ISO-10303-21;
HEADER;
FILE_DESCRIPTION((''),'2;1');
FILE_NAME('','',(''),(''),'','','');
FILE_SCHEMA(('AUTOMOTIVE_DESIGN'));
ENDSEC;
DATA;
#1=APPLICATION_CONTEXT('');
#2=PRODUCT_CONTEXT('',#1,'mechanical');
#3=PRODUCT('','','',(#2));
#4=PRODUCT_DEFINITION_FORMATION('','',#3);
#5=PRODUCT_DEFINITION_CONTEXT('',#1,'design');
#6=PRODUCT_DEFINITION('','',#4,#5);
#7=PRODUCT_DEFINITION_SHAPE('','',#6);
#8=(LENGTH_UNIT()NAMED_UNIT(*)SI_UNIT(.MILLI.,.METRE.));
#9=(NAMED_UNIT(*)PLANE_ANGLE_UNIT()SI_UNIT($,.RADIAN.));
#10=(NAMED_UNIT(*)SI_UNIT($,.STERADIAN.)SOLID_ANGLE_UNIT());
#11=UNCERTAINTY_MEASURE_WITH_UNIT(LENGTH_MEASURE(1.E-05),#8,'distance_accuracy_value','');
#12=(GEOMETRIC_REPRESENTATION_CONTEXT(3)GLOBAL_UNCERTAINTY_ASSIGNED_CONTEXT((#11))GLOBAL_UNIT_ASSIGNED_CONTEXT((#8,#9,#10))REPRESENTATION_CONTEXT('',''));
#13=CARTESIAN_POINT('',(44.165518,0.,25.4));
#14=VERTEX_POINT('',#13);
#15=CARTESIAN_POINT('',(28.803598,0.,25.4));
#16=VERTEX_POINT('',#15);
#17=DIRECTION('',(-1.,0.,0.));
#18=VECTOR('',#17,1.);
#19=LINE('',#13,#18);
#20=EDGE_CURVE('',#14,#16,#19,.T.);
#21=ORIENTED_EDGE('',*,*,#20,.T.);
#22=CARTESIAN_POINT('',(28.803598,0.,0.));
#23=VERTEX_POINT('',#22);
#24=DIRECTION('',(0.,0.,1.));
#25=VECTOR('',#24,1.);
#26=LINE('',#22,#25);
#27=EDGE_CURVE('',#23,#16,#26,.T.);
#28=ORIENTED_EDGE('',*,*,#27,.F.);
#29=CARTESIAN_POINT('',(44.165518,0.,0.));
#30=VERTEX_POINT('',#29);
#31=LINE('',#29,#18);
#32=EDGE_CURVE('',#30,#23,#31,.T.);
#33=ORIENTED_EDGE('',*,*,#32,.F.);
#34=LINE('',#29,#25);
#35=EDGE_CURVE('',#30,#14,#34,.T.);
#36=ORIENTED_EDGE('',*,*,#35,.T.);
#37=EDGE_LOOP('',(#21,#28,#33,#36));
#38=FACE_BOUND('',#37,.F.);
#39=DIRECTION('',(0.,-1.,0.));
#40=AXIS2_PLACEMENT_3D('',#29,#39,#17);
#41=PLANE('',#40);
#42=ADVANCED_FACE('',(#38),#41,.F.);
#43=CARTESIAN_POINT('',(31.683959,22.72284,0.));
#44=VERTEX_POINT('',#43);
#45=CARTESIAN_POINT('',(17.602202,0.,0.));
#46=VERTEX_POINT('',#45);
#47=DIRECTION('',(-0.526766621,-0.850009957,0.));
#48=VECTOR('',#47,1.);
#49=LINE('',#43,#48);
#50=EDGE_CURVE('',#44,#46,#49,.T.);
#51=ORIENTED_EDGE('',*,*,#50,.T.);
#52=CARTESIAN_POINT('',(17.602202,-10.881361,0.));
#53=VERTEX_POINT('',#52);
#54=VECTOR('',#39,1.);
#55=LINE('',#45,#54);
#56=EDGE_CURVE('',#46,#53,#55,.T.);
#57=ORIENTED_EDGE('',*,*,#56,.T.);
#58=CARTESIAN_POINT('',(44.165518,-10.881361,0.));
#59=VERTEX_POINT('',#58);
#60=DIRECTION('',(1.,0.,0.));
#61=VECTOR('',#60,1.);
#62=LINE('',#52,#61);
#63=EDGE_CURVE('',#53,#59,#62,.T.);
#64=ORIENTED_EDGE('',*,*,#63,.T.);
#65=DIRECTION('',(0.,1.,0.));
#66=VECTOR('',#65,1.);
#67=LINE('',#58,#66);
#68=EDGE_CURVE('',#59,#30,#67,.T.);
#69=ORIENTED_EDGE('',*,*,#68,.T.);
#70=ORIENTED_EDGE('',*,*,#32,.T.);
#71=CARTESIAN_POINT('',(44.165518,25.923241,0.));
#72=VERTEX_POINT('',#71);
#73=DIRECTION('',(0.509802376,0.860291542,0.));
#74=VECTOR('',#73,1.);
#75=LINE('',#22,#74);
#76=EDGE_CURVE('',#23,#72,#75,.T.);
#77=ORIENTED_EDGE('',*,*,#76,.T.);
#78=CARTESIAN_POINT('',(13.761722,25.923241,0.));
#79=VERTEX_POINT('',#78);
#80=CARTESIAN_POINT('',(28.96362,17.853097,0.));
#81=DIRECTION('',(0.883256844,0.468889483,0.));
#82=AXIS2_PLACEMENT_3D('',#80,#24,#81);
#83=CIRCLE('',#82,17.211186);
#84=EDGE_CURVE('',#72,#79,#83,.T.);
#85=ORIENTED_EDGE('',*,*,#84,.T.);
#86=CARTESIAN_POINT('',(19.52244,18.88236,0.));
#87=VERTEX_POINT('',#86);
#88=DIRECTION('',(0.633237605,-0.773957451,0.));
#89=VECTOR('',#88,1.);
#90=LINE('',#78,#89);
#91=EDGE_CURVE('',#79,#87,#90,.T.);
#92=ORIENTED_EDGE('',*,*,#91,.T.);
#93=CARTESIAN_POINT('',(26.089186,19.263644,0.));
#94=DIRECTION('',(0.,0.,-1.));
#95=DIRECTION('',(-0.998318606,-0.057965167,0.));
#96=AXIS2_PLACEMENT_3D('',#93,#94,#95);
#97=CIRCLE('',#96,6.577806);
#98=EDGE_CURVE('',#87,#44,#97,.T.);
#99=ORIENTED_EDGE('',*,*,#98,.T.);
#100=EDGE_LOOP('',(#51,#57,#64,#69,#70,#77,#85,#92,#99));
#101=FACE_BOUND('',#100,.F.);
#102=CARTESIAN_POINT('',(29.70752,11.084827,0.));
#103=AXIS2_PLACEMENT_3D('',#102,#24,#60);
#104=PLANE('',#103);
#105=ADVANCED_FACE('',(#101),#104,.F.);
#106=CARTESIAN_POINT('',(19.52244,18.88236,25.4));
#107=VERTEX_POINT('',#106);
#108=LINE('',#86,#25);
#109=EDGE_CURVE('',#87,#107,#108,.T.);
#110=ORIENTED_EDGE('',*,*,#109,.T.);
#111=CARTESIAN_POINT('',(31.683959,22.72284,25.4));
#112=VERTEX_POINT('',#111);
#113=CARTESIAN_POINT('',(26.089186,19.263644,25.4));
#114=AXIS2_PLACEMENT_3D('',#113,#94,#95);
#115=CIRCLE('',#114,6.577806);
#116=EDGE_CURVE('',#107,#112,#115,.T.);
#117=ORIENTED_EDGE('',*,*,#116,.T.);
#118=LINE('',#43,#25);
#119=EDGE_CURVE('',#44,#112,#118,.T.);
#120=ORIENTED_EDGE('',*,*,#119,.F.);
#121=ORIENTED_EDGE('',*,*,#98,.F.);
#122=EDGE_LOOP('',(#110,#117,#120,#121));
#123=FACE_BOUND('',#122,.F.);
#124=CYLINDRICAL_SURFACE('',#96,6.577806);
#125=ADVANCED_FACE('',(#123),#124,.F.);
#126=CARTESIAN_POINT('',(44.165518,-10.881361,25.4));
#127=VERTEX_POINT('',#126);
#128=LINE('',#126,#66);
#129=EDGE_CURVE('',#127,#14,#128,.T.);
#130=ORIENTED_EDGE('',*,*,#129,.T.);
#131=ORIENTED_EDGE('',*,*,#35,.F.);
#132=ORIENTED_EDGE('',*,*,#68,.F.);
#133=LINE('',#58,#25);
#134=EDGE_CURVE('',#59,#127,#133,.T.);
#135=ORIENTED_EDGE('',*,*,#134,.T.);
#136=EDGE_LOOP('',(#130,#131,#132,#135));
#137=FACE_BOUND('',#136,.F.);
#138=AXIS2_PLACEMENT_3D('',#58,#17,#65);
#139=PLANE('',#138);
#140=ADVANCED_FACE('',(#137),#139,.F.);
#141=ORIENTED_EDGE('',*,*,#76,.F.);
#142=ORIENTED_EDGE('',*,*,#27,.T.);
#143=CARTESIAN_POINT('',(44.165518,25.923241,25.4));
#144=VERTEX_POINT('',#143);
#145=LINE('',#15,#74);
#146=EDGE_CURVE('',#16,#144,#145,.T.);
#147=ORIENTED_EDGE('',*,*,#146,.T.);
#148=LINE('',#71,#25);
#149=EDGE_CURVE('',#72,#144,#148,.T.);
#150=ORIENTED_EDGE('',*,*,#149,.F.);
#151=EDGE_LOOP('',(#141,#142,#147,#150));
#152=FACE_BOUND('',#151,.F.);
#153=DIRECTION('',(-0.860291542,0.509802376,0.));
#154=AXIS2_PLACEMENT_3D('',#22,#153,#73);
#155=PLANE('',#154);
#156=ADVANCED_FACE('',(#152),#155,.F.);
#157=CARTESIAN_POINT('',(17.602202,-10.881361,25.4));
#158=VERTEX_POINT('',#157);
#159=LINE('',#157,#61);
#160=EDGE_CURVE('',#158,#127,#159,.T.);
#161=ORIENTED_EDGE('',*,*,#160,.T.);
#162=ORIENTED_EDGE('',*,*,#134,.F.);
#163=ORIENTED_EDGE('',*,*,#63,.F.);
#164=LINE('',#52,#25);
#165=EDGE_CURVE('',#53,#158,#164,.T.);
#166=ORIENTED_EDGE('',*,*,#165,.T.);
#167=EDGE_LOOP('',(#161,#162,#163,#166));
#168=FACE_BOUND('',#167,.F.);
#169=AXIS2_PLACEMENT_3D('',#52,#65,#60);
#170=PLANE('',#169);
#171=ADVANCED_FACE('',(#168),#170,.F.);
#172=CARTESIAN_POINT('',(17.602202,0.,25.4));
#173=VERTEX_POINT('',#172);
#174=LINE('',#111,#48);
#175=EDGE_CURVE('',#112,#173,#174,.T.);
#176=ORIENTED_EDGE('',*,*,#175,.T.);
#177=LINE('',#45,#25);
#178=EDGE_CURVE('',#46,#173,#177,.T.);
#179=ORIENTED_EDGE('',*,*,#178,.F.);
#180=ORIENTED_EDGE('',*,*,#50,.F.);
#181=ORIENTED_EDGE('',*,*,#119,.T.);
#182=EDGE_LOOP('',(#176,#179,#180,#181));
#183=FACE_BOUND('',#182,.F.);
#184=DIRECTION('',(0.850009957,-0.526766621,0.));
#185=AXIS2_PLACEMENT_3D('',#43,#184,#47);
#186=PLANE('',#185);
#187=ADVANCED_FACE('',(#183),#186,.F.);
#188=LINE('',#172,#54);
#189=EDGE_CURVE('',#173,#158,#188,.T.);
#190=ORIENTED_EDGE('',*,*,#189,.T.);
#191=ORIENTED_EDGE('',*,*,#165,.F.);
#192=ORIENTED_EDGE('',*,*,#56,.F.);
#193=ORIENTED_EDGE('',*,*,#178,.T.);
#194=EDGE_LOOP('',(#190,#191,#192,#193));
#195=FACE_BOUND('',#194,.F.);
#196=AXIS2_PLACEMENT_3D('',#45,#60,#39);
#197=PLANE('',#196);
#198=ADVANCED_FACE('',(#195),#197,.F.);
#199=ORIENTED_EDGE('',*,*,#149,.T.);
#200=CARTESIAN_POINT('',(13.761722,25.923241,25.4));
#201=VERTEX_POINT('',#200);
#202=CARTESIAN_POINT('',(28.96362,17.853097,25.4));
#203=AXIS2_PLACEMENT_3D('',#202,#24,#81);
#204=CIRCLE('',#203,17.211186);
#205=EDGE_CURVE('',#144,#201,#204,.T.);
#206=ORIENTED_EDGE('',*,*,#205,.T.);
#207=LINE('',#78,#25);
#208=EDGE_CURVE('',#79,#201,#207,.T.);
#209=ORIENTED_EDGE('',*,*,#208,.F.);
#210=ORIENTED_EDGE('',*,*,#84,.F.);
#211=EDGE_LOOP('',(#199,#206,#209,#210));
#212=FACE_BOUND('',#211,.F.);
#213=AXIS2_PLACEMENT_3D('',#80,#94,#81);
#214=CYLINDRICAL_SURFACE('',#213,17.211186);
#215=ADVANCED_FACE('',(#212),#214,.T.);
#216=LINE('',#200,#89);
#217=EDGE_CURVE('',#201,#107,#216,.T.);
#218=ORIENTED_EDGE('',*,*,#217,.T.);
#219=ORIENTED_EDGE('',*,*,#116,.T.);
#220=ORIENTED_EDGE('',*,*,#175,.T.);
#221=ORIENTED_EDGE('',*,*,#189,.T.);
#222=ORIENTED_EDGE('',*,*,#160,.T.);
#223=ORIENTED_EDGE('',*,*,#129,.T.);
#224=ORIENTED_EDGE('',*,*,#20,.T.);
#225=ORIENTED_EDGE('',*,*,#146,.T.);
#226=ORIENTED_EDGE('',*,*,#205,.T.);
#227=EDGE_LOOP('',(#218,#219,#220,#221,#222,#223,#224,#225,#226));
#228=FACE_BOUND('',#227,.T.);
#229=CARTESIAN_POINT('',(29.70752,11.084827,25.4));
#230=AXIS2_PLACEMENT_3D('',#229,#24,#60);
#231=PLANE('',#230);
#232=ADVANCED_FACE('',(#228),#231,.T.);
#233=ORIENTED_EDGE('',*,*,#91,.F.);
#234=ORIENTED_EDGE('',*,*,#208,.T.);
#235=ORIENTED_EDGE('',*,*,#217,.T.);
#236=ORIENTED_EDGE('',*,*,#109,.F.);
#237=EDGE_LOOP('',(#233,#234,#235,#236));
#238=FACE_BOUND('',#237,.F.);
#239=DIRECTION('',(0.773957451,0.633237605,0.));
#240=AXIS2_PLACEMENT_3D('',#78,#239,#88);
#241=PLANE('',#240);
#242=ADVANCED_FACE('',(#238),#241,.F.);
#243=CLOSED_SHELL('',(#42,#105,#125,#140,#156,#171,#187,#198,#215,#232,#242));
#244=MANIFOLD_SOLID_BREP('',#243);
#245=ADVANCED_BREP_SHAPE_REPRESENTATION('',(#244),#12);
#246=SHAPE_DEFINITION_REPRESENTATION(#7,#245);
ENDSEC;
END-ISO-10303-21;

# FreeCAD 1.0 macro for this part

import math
import FreeCAD as App
import Part
import Sketcher
from FreeCAD import Vector
Q = App.Units.Quantity

doc = App.newDocument("Part")
params = doc.addObject("Spreadsheet::Sheet", "Params")
for row, (alias, value) in enumerate([
    ("pad1_length", "1 in"),
], start=1):
    params.set(f"A{row}", alias)
    params.set(f"B{row}", "=" + value)
    params.setAlias(f"B{row}", alias)

body = doc.addObject("PartDesign::Body", "Body")

# Sketch on XY plane
sketch1 = body.newObject("Sketcher::SketchObject", "Sketch")
sketch1.AttachmentSupport = (doc.getObject("XY_Plane"), [""])
sketch1.MapMode = "FlatFace"
sketch1.addGeometry([
    Part.LineSegment(Vector(29, 0, 0), Vector(44, 26, 0)),  # 0
    Part.ArcOfCircle(Part.Circle(Vector(29, 18, 0), Vector(0, 0, 1), 17), math.radians(28), math.radians(152)),  # 1
    Part.LineSegment(Vector(14, 26, 0), Vector(20, 19, 0)),  # 2
    Part.ArcOfCircle(Part.Circle(Vector(26, 19, 0), Vector(0, 0, 1), 7), math.radians(32), math.radians(183)),  # 3
    Part.LineSegment(Vector(32, 23, 0), Vector(18, 0, 0)),  # 4
    Part.LineSegment(Vector(18, 0, 0), Vector(18, -11, 0)),  # 5
    Part.LineSegment(Vector(18, -11, 0), Vector(44, -11, 0)),  # 6
    Part.LineSegment(Vector(44, -11, 0), Vector(44, 0, 0)),  # 7
    Part.LineSegment(Vector(44, 0, 0), Vector(29, 0, 0)),  # 8
], False)
sketch1.addConstraint([
    Sketcher.Constraint("Coincident", 0, 2, 1, 1),
    Sketcher.Constraint("Coincident", 1, 2, 2, 1),
    Sketcher.Constraint("Coincident", 2, 2, 3, 2),
    Sketcher.Constraint("Coincident", 3, 1, 4, 1),
    Sketcher.Constraint("Coincident", 4, 2, 5, 1),
    Sketcher.Constraint("Coincident", 5, 2, 6, 1),
    Sketcher.Constraint("Coincident", 6, 2, 7, 1),
    Sketcher.Constraint("Coincident", 7, 2, 8, 1),
    Sketcher.Constraint("Coincident", 8, 2, 0, 1),
    Sketcher.Constraint("Vertical", 5),
    Sketcher.Constraint("Horizontal", 6),
    Sketcher.Constraint("Vertical", 7),
    Sketcher.Constraint("Horizontal", 8),
    Sketcher.Constraint("PointOnObject", 4, 2, -1),
    Sketcher.Constraint("PointOnObject", 7, 2, -1),
    Sketcher.Constraint("Horizontal", 0, 2, 1, 2),
    Sketcher.Constraint("Vertical", 0, 2, 6, 2),
    Sketcher.Constraint("DistanceX", 6, 1, 6, 2, Q("1.0457998 in")),
    Sketcher.Constraint("DistanceX", 8, 2, 8, 1, Q("0.6048 in")),
    Sketcher.Constraint("DistanceY", 5, 2, 5, 1, Q("0.4284 in")),
    Sketcher.Constraint("DistanceX", -1, 1, 4, 2, Q("0.6930001 in")),
    Sketcher.Constraint("DistanceX", 1, 2, 0, 2, Q("1.1969998 in")),
    Sketcher.Constraint("DistanceY", 3, 1, 0, 2, Q("0.126 in")),
    Sketcher.Constraint("DistanceY", 5, 2, 3, 1, Q("1.323 in")),
    Sketcher.Constraint("DistanceX", -1, 1, 2, 2, Q("0.7686 in")),
    Sketcher.Constraint("DistanceY", -1, 1, 2, 2, Q("0.7434 in")),
    Sketcher.Constraint("DistanceX", -1, 1, 3, 1, Q("1.2474 in")),
    Sketcher.Constraint("Radius", 1, 17.211186),
    Sketcher.Constraint("Radius", 3, 6.577806),
])
pad1 = body.newObject("PartDesign::Pad", "Pad")
pad1.Profile = sketch1
pad1.setExpression("Length", "Params.pad1_length")

doc.recompute()
